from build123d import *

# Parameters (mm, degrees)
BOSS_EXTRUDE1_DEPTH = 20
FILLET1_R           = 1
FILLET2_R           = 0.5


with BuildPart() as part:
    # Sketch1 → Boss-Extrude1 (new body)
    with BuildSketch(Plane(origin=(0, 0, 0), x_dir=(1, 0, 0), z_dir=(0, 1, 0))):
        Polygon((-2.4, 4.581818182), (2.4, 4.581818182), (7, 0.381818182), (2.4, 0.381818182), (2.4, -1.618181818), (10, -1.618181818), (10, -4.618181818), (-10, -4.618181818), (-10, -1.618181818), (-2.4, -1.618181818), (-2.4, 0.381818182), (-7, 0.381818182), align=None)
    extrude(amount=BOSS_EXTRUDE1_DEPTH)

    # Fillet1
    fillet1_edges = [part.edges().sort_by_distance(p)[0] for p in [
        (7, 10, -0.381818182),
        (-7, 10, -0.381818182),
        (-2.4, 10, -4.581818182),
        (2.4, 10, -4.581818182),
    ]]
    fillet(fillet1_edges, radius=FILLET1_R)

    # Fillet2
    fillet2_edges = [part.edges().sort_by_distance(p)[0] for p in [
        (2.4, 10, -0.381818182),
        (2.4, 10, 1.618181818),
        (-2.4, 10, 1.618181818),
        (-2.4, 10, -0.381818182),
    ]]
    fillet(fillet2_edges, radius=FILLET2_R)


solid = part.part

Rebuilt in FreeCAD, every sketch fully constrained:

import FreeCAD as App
import Part
import Sketcher

V = App.Vector
Q = App.Units.Quantity


def edges_at(feature, points):
    """Names of the edges that pass closest to the given points."""
    edges = feature.Shape.Edges
    near = lambda p: min(range(len(edges)), key=lambda i: edges[i].distToShape(Part.Vertex(*p))[0])
    return sorted({f"Edge{near(p) + 1}" for p in points})


def add_polygon(sketch, points):
    """Adds a closed chain of lines whose ends are joined by coincident constraints."""
    first, n = sketch.GeometryCount, len(points)
    for a, b in zip(points, points[1:] + points[:1]):
        sketch.addGeometry(Part.LineSegment(App.Vector(*a, 0), App.Vector(*b, 0)), False)
    for i in range(n):
        sketch.addConstraint(Sketcher.Constraint("Coincident", first + i, 2, first + (i + 1) % n, 1))

doc = App.newDocument("Part")
params = doc.addObject("Spreadsheet::Sheet", "Params")
for row, (alias, value) in enumerate([
    ("sketch1_width", "20 mm"),
    ("sketch1_height", "2 mm"),
    ("sketch1_height2", "3 mm"),
    ("sketch1_width2", "4.8 mm"),
    ("sketch1_width3", "4.6 mm"),
    ("pad1_length", "20 mm"),
    ("fillet_radius", "1 mm"),
    ("fillet2_radius", "0.5 mm"),
], start=1):
    params.set(f"A{row}", alias)
    params.set(f"B{row}", "=" + value)
    params.setAlias(f"B{row}", alias)

body = doc.addObject("PartDesign::Body", "Body")

# Sketch on XZ plane
sketch1 = body.newObject("Sketcher::SketchObject", "Sketch")
sketch1.AttachmentSupport = (doc.getObject("XZ_Plane"), [""])
sketch1.MapMode = "FlatFace"
add_polygon(sketch1, [(2.4, -4.6), (-2.4, -4.6), (-7, -0.4), (-2.4, -0.4), (-2.4, 1.6), (-10, 1.6), (-10, 4.6), (10, 4.6), (10, 1.6), (2.4, 1.6), (2.4, -0.4), (7, -0.4)])  # lines 0-11
sketch1.addConstraint(Sketcher.Constraint("Horizontal", 0))
sketch1.addConstraint(Sketcher.Constraint("Horizontal", 2))
sketch1.addConstraint(Sketcher.Constraint("Vertical", 3))
sketch1.addConstraint(Sketcher.Constraint("Horizontal", 4))
sketch1.addConstraint(Sketcher.Constraint("Vertical", 5))
sketch1.addConstraint(Sketcher.Constraint("Horizontal", 6))
sketch1.addConstraint(Sketcher.Constraint("Vertical", 7))
sketch1.addConstraint(Sketcher.Constraint("Horizontal", 8))
sketch1.addConstraint(Sketcher.Constraint("Vertical", 9))
sketch1.addConstraint(Sketcher.Constraint("Horizontal", 10))
sketch1.addConstraint(Sketcher.Constraint("Symmetric", 4, 2, 7, 2, -2))
sketch1.addConstraint(Sketcher.Constraint("Symmetric", 2, 2, 9, 2, -2))
sketch1.addConstraint(Sketcher.Constraint("Vertical", 0, 2, 2, 2))
sketch1.addConstraint(Sketcher.Constraint("Vertical", 9, 2, 11, 2))
sketch1.addConstraint(Sketcher.Constraint("Equal", 2, 10))
sketch1.addConstraint(Sketcher.Constraint("DistanceX", 6, 1, 6, 2, Q("20 mm")))
sketch1.addConstraint(Sketcher.Constraint("DistanceY", 3, 1, 3, 2, Q("2 mm")))
sketch1.addConstraint(Sketcher.Constraint("DistanceY", 5, 1, 5, 2, Q("3 mm")))
sketch1.addConstraint(Sketcher.Constraint("DistanceX", 0, 2, 0, 1, Q("4.8 mm")))
sketch1.addConstraint(Sketcher.Constraint("DistanceX", 2, 1, 2, 2, Q("4.6 mm")))
sketch1.addConstraint(Sketcher.Constraint("DistanceY", 0, 2, 1, 2, Q("4.2 mm")))
sketch1.addConstraint(Sketcher.Constraint("DistanceY", 0, 2, -1, 1, Q("4.581818 mm")))
sketch1.setExpression("Constraints[27]", "Params.sketch1_width")
sketch1.setExpression("Constraints[28]", "Params.sketch1_height")
sketch1.setExpression("Constraints[29]", "Params.sketch1_height2")
sketch1.setExpression("Constraints[30]", "Params.sketch1_width2")
sketch1.setExpression("Constraints[31]", "Params.sketch1_width3")
pad1 = body.newObject("PartDesign::Pad", "Pad")
pad1.Profile = sketch1
pad1.setExpression("Length", "Params.pad1_length")
pad1.Reversed = True
doc.recompute()

fillet = body.newObject("PartDesign::Fillet", "Fillet")
fillet.Base = (pad1, edges_at(pad1, [
    (7, 10, -0.382),
    (-7, 10, -0.382),
    (-2.4, 10, -4.582),
    (2.4, 10, -4.582),
]))
fillet.setExpression("Radius", "Params.fillet_radius")
doc.recompute()

fillet2 = body.newObject("PartDesign::Fillet", "Fillet001")
fillet2.Base = (fillet, edges_at(fillet, [
    (2.4, 10, -0.382),
    (2.4, 10, 1.618),
    (-2.4, 10, 1.618),
    (-2.4, 10, -0.382),
]))
fillet2.setExpression("Radius", "Params.fillet2_radius")

doc.recompute()
